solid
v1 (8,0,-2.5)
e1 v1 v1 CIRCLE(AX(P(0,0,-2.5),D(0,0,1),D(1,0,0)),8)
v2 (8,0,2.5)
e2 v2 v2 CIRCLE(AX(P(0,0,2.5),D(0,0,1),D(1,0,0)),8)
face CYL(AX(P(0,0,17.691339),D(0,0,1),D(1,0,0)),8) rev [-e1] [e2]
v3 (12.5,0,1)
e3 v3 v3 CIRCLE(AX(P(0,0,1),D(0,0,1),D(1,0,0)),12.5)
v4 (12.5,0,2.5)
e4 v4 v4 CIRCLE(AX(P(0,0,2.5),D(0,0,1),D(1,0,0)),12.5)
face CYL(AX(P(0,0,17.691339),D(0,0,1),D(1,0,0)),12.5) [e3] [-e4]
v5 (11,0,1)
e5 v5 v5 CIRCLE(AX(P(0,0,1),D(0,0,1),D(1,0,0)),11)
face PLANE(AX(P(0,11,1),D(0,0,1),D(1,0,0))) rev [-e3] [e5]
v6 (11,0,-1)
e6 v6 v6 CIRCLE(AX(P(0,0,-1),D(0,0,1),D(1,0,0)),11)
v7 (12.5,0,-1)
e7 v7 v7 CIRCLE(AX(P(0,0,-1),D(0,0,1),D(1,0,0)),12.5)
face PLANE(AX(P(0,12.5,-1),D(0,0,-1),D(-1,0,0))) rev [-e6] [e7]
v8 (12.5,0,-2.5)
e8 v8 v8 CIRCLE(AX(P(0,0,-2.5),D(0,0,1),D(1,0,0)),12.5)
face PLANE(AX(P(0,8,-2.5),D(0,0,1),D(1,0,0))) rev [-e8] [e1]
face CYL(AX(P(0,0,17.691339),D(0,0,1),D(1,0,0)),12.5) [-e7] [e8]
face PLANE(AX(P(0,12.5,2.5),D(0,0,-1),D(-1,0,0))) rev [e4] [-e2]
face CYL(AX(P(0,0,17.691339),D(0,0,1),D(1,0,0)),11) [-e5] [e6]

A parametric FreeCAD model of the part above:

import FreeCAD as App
import Part
import Sketcher
Q = App.Units.Quantity


def add_polygon(sketch, points):
    """Adds a closed chain of lines whose ends are joined by coincident constraints."""
    first, n = sketch.GeometryCount, len(points)
    for a, b in zip(points, points[1:] + points[:1]):
        sketch.addGeometry(Part.LineSegment(App.Vector(*a, 0), App.Vector(*b, 0)), False)
    for i in range(n):
        sketch.addConstraint(Sketcher.Constraint("Coincident", first + i, 2, first + (i + 1) % n, 1))

doc = App.newDocument("Part")
params = doc.addObject("Spreadsheet::Sheet", "Params")
for row, (alias, value) in enumerate([
    ("sketch1_height", "5 mm"),
    ("sketch1_height2", "2 mm"),
    ("sketch1_width", "4.5 mm"),
    ("revolution_angle", "360 deg"),
], start=1):
    params.set(f"A{row}", alias)
    params.set(f"B{row}", "=" + value)
    params.setAlias(f"B{row}", alias)

body = doc.addObject("PartDesign::Body", "Body")

# Sketch on YZ plane
sketch1 = doc.addObject("Sketcher::SketchObject", "Sketch")
body.addObject(sketch1)
sketch1.AttachmentSupport = (doc.YZ_Plane, [""])
sketch1.MapMode = "FlatFace"
add_polygon(sketch1, [(8, 2.5), (8, -2.5), (12.5, -2.5), (12.5, -1), (11, -1), (11, 1), (12.5, 1), (12.5, 2.5)])  # lines 0-7
sketch1.addConstraint([
    Sketcher.Constraint("Vertical", 0),
    Sketcher.Constraint("Horizontal", 1),
    Sketcher.Constraint("Vertical", 2),
    Sketcher.Constraint("Horizontal", 3),
    Sketcher.Constraint("Vertical", 4),
    Sketcher.Constraint("Horizontal", 5),
    Sketcher.Constraint("Vertical", 6),
    Sketcher.Constraint("Horizontal", 7),
    Sketcher.Constraint("Symmetric", 2, 2, 5, 2, -1),
    Sketcher.Constraint("Equal", 5, 2),
    Sketcher.Constraint("Equal", 2, 6),
    Sketcher.Constraint("DistanceY", 0, 2, 0, 1, Q("5 mm")),
    Sketcher.Constraint("DistanceY", 4, 1, 4, 2, Q("2 mm")),
    Sketcher.Constraint("DistanceX", 1, 1, 1, 2, Q("4.5 mm")),
    Sketcher.Constraint("DistanceX", -1, 1, 0, 2, Q("8 mm")),
])
sketch1.setExpression("Constraints[19]", "Params.sketch1_height")
sketch1.setExpression("Constraints[20]", "Params.sketch1_height2")
sketch1.setExpression("Constraints[21]", "Params.sketch1_width")
revolution = doc.addObject("PartDesign::Revolution", "Revolution")
body.addObject(revolution)
revolution.Profile = sketch1
revolution.ReferenceAxis = (sketch1, ["V_Axis"])
revolution.setExpression("Angle", "Params.revolution_angle")

doc.recompute()
